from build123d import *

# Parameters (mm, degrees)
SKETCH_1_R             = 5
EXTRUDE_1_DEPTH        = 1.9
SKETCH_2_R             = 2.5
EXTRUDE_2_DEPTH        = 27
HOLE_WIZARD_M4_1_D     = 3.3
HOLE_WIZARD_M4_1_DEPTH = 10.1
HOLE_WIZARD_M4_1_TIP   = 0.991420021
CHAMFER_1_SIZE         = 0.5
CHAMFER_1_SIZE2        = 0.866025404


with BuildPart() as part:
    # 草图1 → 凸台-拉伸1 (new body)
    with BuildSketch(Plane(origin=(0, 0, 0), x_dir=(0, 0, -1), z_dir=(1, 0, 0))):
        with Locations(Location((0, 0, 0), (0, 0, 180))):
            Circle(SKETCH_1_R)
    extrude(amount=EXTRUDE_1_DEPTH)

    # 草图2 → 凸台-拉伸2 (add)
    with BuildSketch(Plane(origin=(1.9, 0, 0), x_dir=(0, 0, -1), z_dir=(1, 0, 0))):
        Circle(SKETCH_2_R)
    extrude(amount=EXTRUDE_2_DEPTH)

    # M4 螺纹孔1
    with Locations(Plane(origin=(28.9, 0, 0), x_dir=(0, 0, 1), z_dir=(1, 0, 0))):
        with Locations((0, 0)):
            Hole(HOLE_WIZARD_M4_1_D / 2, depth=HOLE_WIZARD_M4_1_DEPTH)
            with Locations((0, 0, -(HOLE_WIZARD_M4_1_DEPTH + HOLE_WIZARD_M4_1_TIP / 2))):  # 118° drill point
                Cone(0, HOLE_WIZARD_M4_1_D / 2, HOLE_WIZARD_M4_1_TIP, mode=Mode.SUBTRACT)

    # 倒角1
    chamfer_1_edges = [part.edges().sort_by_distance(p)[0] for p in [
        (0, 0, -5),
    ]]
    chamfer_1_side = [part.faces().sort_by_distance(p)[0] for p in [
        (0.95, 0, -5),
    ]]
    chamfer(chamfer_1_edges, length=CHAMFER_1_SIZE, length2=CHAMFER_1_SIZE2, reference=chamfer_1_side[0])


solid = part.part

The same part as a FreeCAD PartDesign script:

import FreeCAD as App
import Part
import Sketcher
from FreeCAD import Vector
Q = App.Units.Quantity


def edges_at(feature, points):
    """Names of the edges that pass closest to the given points."""
    edges = feature.Shape.Edges
    near = lambda p: min(range(len(edges)), key=lambda i: edges[i].distToShape(Part.Vertex(*p))[0])
    return sorted({f"Edge{near(p) + 1}" for p in points})

doc = App.newDocument("Part")
body = doc.addObject("PartDesign::Body", "Body")

# Sketch on YZ plane
sketch1 = body.newObject("Sketcher::SketchObject", "Sketch")
sketch1.AttachmentSupport = (doc.getObject("YZ_Plane"), [""])
sketch1.MapMode = "FlatFace"
sketch1.addGeometry(Part.Circle(Vector(0, 0, 0), Vector(0, 0, 1), 5), False)
sketch1.addConstraint(Sketcher.Constraint("Coincident", 0, 3, -1, 1))
sketch1.addConstraint(Sketcher.Constraint("Diameter", 0, Q("10 mm")))
pad1 = body.newObject("PartDesign::Pad", "Pad")
pad1.Profile = sketch1
pad1.Length = 1.9

# Sketch on YZ plane
sketch2 = body.newObject("Sketcher::SketchObject", "Sketch001")
sketch2.AttachmentSupport = (doc.getObject("YZ_Plane"), [""])
sketch2.MapMode = "FlatFace"
sketch2.AttachmentOffset = App.Placement(Vector(0, 0, 1.9), App.Rotation())
sketch2.addGeometry(Part.Circle(Vector(0, 0, 0), Vector(0, 0, 1), 2.5), False)
sketch2.addConstraint(Sketcher.Constraint("Coincident", 0, 3, -1, 1))
sketch2.addConstraint(Sketcher.Constraint("Diameter", 0, Q("5 mm")))
pad2 = body.newObject("PartDesign::Pad", "Pad001")
pad2.Profile = sketch2
pad2.Length = 27

# Sketch on YZ plane
sketch3 = body.newObject("Sketcher::SketchObject", "Sketch002")
sketch3.AttachmentSupport = (doc.getObject("YZ_Plane"), [""])
sketch3.MapMode = "FlatFace"
sketch3.AttachmentOffset = App.Placement(Vector(0, 0, 28.9), App.Rotation())
sketch3.addGeometry(Part.Circle(Vector(0, 0, 0), Vector(0, 0, 1), 1.6), False)
sketch3.addConstraint(Sketcher.Constraint("Coincident", 0, 3, -1, 1))
sketch3.addConstraint(Sketcher.Constraint("Diameter", 0, Q("3.3 mm")))
doc.recompute()
hole = body.newObject("PartDesign::Hole", "Hole")
hole.Profile = sketch3
hole.ThreadType = "None"
hole.Diameter = 3.3
hole.DepthType = "Dimension"
hole.Depth = 10.1
hole.DrillPoint = "Angled"
hole.DrillPointAngle = 118
doc.recompute()

chamfer = body.newObject("PartDesign::Chamfer", "Chamfer")
chamfer.Base = (hole, edges_at(hole, [(0, 0, -5)]))
chamfer.ChamferType = "Two distances"
chamfer.Size = 0.5
chamfer.Size2 = 0.866025

doc.recompute()
